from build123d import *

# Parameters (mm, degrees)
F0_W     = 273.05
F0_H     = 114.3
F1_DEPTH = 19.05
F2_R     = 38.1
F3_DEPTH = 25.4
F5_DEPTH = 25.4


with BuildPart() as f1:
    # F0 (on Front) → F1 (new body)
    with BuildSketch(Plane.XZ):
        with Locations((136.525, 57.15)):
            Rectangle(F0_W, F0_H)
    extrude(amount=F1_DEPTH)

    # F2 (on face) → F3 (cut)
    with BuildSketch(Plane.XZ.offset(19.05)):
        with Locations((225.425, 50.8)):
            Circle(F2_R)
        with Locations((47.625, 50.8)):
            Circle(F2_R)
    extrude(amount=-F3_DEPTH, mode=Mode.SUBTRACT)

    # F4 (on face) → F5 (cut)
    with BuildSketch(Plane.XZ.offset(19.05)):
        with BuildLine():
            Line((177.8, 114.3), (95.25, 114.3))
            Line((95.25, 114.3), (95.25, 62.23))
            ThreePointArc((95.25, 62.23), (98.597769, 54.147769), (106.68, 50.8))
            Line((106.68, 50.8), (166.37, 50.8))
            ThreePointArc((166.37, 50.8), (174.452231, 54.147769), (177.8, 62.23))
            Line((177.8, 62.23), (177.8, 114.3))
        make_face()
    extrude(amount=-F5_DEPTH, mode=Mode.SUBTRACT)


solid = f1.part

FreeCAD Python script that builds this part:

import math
import FreeCAD as App
import Part
import Sketcher

V = App.Vector
Q = App.Units.Quantity

doc = App.newDocument("Part")
body = doc.addObject("PartDesign::Body", "Body")

sketch1 = doc.addObject("Sketcher::SketchObject", "Sketch")
body.addObject(sketch1)
sketch1.AttachmentSupport = (doc.XZ_Plane, [""])
sketch1.MapMode = "FlatFace"
sketch1.addGeometry([
    Part.LineSegment(V(0, 114, 0), V(0, 0, 0)),
    Part.LineSegment(V(0, 0, 0), V(273, 0, 0)),
    Part.LineSegment(V(273, 0, 0), V(273, 114, 0)),
    Part.LineSegment(V(273, 114, 0), V(0, 114, 0)),
], False)
sketch1.addConstraint([
    Sketcher.Constraint("Coincident", 0, 2, 1, 1),
    Sketcher.Constraint("Coincident", 1, 2, 2, 1),
    Sketcher.Constraint("Coincident", 2, 2, 3, 1),
    Sketcher.Constraint("Coincident", 3, 2, 0, 1),
    Sketcher.Constraint("Vertical", 0),
    Sketcher.Constraint("Horizontal", 1),
    Sketcher.Constraint("Vertical", 2),
    Sketcher.Constraint("Horizontal", 3),
    Sketcher.Constraint("Coincident", 0, 2, -1, 1),
    Sketcher.Constraint("DistanceY", 0, 2, 0, 1, Q("4.5 in")),
    Sketcher.Constraint("DistanceX", 1, 1, 1, 2, Q("10.75 in")),
])
pad1 = doc.addObject("PartDesign::Pad", "Pad")
body.addObject(pad1)
pad1.Profile = sketch1
pad1.Length = Q("0.75 in")

sketch2 = doc.addObject("Sketcher::SketchObject", "Sketch001")
body.addObject(sketch2)
sketch2.AttachmentSupport = (doc.XZ_Plane, [""])
sketch2.MapMode = "FlatFace"
sketch2.AttachmentOffset = App.Placement(V(0, 0, 0.75 * 25.4), App.Rotation())
sketch2.addGeometry([
    Part.Circle(V(225, 51, 0), V(0, 0, 1), 38),
    Part.Circle(V(48, 51, 0), V(0, 0, 1), 38),
], False)
sketch2.addConstraint([
    Sketcher.Constraint("Equal", 0, 1),
    Sketcher.Constraint("Horizontal", 0, 3, 1, 3),
    Sketcher.Constraint("Diameter", 0, Q("3 in")),
    Sketcher.Constraint("DistanceY", -1, 1, 0, 3, Q("2 in")),
    Sketcher.Constraint("DistanceX", 1, 3, 0, 3, Q("7 in")),
    Sketcher.Constraint("DistanceX", -1, 1, 0, 3, Q("8.875 in")),
])
pocket1 = doc.addObject("PartDesign::Pocket", "Pocket")
body.addObject(pocket1)
pocket1.Profile = sketch2
pocket1.Length = Q("1 in")

sketch3 = doc.addObject("Sketcher::SketchObject", "Sketch002")
body.addObject(sketch3)
sketch3.AttachmentSupport = (doc.XZ_Plane, [""])
sketch3.MapMode = "FlatFace"
sketch3.AttachmentOffset = App.Placement(V(0, 0, 0.75 * 25.4), App.Rotation())
sketch3.addGeometry([
    Part.LineSegment(V(178, 114, 0), V(95, 114, 0)),
    Part.LineSegment(V(95, 114, 0), V(95, 62, 0)),
    Part.ArcOfCircle(Part.Circle(V(107, 62, 0), V(0, 0, 1), 11), math.radians(180), math.radians(270)),
    Part.LineSegment(V(107, 51, 0), V(166, 51, 0)),
    Part.ArcOfCircle(Part.Circle(V(166, 62, 0), V(0, 0, 1), 11), math.radians(-90), math.radians(0)),
    Part.LineSegment(V(178, 62, 0), V(178, 114, 0)),
], False)
sketch3.addConstraint([
    Sketcher.Constraint("Coincident", 0, 2, 1, 1),
    Sketcher.Constraint("Tangent", 1, 2, 2, 1),
    Sketcher.Constraint("Tangent", 2, 2, 3, 1),
    Sketcher.Constraint("Tangent", 3, 2, 4, 1),
    Sketcher.Constraint("Tangent", 4, 2, 5, 1),
    Sketcher.Constraint("Coincident", 5, 2, 0, 1),
    Sketcher.Constraint("Horizontal", 0),
    Sketcher.Constraint("Vertical", 1),
    Sketcher.Constraint("Horizontal", 3),
    Sketcher.Constraint("Vertical", 5),
    Sketcher.Constraint("Equal", 2, 4),
    Sketcher.Constraint("Radius", 2, Q("0.4499999 in")),
    Sketcher.Constraint("DistanceY", -1, 1, 2, 2, Q("2 in")),
    Sketcher.Constraint("DistanceX", -1, 1, 4, 2, Q("7 in")),
    Sketcher.Constraint("DistanceX", 0, 2, 0, 1, Q("3.25 in")),
    Sketcher.Constraint("DistanceY", 1, 2, 1, 1, Q("2.05 in")),
])
pocket2 = doc.addObject("PartDesign::Pocket", "Pocket001")
body.addObject(pocket2)
pocket2.Profile = sketch3
pocket2.Length = Q("1 in")

doc.recompute()
